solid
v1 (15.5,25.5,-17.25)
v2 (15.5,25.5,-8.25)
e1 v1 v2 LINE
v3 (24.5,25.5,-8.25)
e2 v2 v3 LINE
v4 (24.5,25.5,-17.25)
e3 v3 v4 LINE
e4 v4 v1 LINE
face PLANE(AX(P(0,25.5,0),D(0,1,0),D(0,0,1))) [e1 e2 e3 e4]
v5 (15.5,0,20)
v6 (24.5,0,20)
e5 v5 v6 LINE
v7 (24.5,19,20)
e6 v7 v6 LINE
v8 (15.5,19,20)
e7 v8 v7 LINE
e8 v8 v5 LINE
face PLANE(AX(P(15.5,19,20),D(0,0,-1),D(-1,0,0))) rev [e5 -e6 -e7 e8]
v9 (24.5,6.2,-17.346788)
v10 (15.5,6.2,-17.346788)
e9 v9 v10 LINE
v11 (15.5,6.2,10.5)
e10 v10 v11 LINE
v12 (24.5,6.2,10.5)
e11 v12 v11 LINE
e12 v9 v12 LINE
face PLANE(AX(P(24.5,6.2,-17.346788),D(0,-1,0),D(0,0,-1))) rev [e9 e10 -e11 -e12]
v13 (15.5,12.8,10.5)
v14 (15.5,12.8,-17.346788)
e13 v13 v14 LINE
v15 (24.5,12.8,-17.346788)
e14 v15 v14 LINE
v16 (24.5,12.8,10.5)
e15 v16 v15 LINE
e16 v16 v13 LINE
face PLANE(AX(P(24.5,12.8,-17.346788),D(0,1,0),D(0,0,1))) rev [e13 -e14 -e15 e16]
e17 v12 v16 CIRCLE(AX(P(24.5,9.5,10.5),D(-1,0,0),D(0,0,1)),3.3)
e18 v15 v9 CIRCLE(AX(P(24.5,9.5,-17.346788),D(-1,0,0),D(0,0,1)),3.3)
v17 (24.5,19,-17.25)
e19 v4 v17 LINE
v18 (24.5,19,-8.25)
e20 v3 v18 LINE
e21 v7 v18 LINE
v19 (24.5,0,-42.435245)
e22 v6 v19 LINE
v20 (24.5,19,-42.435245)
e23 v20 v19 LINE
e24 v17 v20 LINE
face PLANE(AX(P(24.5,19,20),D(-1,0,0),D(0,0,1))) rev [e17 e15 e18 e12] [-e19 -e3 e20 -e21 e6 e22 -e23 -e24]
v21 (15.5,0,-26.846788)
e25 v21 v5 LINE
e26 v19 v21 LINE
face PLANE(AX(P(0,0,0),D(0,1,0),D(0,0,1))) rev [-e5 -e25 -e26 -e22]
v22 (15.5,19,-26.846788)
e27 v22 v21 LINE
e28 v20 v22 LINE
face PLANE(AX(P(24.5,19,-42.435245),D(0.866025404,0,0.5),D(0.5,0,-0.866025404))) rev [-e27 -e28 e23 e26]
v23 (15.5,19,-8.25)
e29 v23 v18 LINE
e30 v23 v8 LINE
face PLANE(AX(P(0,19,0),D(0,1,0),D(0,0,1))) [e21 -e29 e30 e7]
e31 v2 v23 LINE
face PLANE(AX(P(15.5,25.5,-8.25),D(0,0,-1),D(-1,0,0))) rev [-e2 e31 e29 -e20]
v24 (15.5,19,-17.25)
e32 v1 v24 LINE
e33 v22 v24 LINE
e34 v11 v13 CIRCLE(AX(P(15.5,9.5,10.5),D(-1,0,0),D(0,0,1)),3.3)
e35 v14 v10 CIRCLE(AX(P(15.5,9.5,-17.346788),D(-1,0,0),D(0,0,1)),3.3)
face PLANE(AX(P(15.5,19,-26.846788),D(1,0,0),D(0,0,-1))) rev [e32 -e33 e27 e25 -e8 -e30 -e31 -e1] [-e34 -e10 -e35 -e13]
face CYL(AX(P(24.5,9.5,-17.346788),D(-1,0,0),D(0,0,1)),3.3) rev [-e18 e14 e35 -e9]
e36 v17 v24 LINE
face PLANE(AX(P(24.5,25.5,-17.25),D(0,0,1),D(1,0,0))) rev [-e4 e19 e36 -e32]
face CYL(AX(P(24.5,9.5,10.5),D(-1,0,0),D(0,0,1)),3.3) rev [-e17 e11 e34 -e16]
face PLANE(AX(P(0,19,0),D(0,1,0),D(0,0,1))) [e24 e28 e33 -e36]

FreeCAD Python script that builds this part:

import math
import FreeCAD as App
import Part
import Sketcher
Q = App.Units.Quantity


def add_polygon(sketch, points):
    """Adds a closed chain of lines whose ends are joined by coincident constraints."""
    first, n = sketch.GeometryCount, len(points)
    for a, b in zip(points, points[1:] + points[:1]):
        sketch.addGeometry(Part.LineSegment(App.Vector(*a, 0), App.Vector(*b, 0)), False)
    for i in range(n):
        sketch.addConstraint(Sketcher.Constraint("Coincident", first + i, 2, first + (i + 1) % n, 1))

doc = App.newDocument("Part")
body = doc.addObject("PartDesign::Body", "Body")

# Sketch on XZ plane
sketch1 = body.newObject("Sketcher::SketchObject", "Sketch")
sketch1.AttachmentSupport = (doc.getObject("XZ_Plane"), [""])
sketch1.MapMode = "FlatFace"
add_polygon(sketch1, [(16, -27), (16, 20), (24, 20), (24, -42)])  # lines 0-3
sketch1.addConstraint([
    Sketcher.Constraint("Vertical", 0),
    Sketcher.Constraint("Horizontal", 1),
    Sketcher.Constraint("Vertical", 2),
    Sketcher.Constraint("DistanceX", 1, 1, 1, 2, 9.0),
    Sketcher.Constraint("Angle", 3, Q("120 deg")),
    Sketcher.Constraint("DistanceY", -1, 1, 0, 2, 20.0),
    Sketcher.Constraint("DistanceX", -1, 1, 0, 2, 15.5),
    Sketcher.Constraint("DistanceY", 0, 1, 0, 2, 46.846788),
])
pad1 = body.newObject("PartDesign::Pad", "Pad")
pad1.Profile = sketch1
pad1.Length = 19
pad1.Reversed = True

# Sketch on YZ plane
sketch2 = body.newObject("Sketcher::SketchObject", "Sketch001")
sketch2.AttachmentSupport = (doc.getObject("YZ_Plane"), [""])
sketch2.MapMode = "FlatFace"
sketch2.AttachmentOffset = App.Placement(App.Vector(0, 0, 15.5), App.Rotation())
sketch2.addGeometry([
    Part.LineSegment(App.Vector(12.8, 10.5, 0), App.Vector(12.8, -17.3, 0)),
    Part.ArcOfCircle(Part.Circle(App.Vector(9.5, -17.3, 0), App.Vector(0, 0, 1), 3.3), math.radians(180), math.radians(360)),
    Part.LineSegment(App.Vector(6.2, -17.3, 0), App.Vector(6.2, 10.5, 0)),
    Part.ArcOfCircle(Part.Circle(App.Vector(9.5, 10.5, 0), App.Vector(0, 0, 1), 3.3), math.radians(0), math.radians(180)),
], False)
sketch2.addConstraint([
    Sketcher.Constraint("Tangent", 0, 2, 1, 2),
    Sketcher.Constraint("Tangent", 1, 1, 2, 1),
    Sketcher.Constraint("Tangent", 2, 2, 3, 2),
    Sketcher.Constraint("Tangent", 3, 1, 0, 1),
    Sketcher.Constraint("Vertical", 0),
    Sketcher.Constraint("Vertical", 2),
    Sketcher.Constraint("Radius", 1, 3.3),
    Sketcher.Constraint("DistanceX", -1, 1, 1, 3, 9.5),
    Sketcher.Constraint("DistanceY", -1, 1, 3, 3, 10.5),
    Sketcher.Constraint("DistanceY", 0, 2, 0, 1, 27.846788),
])
pocket1 = body.newObject("PartDesign::Pocket", "Pocket")
pocket1.Profile = sketch2
pocket1.Type = "ThroughAll"
pocket1.Reversed = True

# Sketch on XZ plane
sketch3 = body.newObject("Sketcher::SketchObject", "Sketch002")
sketch3.AttachmentSupport = (doc.getObject("XZ_Plane"), [""])
sketch3.MapMode = "FlatFace"
sketch3.AttachmentOffset = App.Placement(App.Vector(0, 0, -19), App.Rotation())
add_polygon(sketch3, [(16, -17), (16, -8), (24, -8), (24, -17)])  # lines 0-3
sketch3.addConstraint([
    Sketcher.Constraint("Vertical", 0),
    Sketcher.Constraint("Horizontal", 1),
    Sketcher.Constraint("Vertical", 2),
    Sketcher.Constraint("Horizontal", 3),
    Sketcher.Constraint("Equal", 3, 0),
    Sketcher.Constraint("DistanceX", 1, 1, 1, 2, 9.0),
    Sketcher.Constraint("DistanceX", -1, 1, 0, 2, 15.5),
    Sketcher.Constraint("DistanceY", 0, 2, -1, 1, 8.25),
])
pad2 = body.newObject("PartDesign::Pad", "Pad001")
pad2.Profile = sketch3
pad2.Length = 6.5
pad2.Reversed = True

doc.recompute()
